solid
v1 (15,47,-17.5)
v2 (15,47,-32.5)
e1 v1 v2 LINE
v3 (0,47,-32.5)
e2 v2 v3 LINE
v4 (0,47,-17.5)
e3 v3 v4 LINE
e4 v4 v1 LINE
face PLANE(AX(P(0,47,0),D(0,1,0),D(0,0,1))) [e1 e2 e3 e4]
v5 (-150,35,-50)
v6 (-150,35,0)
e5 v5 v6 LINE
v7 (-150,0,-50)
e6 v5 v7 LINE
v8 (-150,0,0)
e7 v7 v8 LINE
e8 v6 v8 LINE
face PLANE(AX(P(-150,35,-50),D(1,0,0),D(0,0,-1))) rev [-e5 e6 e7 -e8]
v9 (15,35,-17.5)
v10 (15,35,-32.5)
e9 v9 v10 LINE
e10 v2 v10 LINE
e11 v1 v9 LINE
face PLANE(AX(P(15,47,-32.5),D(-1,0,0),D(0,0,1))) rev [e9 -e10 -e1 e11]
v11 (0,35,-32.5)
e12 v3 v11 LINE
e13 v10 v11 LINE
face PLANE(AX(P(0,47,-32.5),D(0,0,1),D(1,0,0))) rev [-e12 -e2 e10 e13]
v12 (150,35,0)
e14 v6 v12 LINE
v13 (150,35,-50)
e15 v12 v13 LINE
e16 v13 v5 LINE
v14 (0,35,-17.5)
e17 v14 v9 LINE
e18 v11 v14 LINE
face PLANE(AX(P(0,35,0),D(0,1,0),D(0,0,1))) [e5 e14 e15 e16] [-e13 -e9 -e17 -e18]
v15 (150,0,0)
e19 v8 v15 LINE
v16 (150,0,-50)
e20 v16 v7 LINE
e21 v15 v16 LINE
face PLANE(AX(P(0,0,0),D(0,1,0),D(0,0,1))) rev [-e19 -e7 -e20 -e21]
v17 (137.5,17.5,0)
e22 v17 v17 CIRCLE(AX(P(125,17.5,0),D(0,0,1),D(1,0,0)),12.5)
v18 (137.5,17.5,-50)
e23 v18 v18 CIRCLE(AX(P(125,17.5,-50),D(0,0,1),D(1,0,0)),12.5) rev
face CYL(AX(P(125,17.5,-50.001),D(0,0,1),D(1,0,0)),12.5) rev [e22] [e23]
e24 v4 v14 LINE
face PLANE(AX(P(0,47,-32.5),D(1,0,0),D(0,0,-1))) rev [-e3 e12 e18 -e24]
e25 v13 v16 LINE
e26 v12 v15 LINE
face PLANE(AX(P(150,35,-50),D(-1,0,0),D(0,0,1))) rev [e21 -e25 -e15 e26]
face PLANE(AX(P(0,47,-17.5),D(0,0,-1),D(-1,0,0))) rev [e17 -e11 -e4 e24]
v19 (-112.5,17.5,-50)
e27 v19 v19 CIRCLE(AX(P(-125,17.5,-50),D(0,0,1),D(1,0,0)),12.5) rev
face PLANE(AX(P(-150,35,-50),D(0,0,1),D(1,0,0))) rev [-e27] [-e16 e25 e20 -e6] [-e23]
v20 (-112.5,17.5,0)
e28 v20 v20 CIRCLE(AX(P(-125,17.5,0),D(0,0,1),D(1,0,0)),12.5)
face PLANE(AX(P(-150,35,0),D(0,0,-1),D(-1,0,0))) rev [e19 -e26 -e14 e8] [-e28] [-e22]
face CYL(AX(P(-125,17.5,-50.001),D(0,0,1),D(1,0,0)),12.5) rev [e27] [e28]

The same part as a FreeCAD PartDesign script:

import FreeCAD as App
import Part
import Sketcher
Q = App.Units.Quantity


def add_polygon(sketch, points):
    """Adds a closed chain of lines whose ends are joined by coincident constraints."""
    first, n = sketch.GeometryCount, len(points)
    for a, b in zip(points, points[1:] + points[:1]):
        sketch.addGeometry(Part.LineSegment(App.Vector(*a, 0), App.Vector(*b, 0)), False)
    for i in range(n):
        sketch.addConstraint(Sketcher.Constraint("Coincident", first + i, 2, first + (i + 1) % n, 1))

doc = App.newDocument("Part")
body = doc.addObject("PartDesign::Body", "Body")

sketch1 = body.newObject("Sketcher::SketchObject", "Sketch")
sketch1.AttachmentSupport = (doc.getObject("XZ_Plane"), [""])
sketch1.MapMode = "FlatFace"
add_polygon(sketch1, [(-150, -50), (-150, 0), (150, 0), (150, -50)])
sketch1.addConstraint([
    Sketcher.Constraint("Vertical", 0),
    Sketcher.Constraint("Horizontal", 1),
    Sketcher.Constraint("Vertical", 2),
    Sketcher.Constraint("Horizontal", 3),
    Sketcher.Constraint("Symmetric", 0, 2, 1, 2, -1, 1),
    Sketcher.Constraint("DistanceX", 1, 1, 1, 2, Q("300 mm")),
    Sketcher.Constraint("DistanceY", 0, 1, 0, 2, Q("50 mm")),
])
pad1 = body.newObject("PartDesign::Pad", "Pad")
pad1.Profile = sketch1
pad1.Length = 35
pad1.Reversed = True

sketch2 = body.newObject("Sketcher::SketchObject", "Sketch001")
sketch2.AttachmentSupport = (doc.getObject("XZ_Plane"), [""])
sketch2.MapMode = "FlatFace"
sketch2.AttachmentOffset = App.Placement(App.Vector(0, 0, -35), App.Rotation())
add_polygon(sketch2, [(0, -32.5), (0, -17.5), (15, -17.5), (15, -32.5)])
sketch2.addConstraint([
    Sketcher.Constraint("Vertical", 0),
    Sketcher.Constraint("Horizontal", 1),
    Sketcher.Constraint("Vertical", 2),
    Sketcher.Constraint("Horizontal", 3),
    Sketcher.Constraint("PointOnObject", 0, 2, -2),
    Sketcher.Constraint("Equal", 3, 0),
    Sketcher.Constraint("DistanceX", 1, 1, 1, 2, Q("15 mm")),
    Sketcher.Constraint("DistanceY", 0, 2, -1, 1, Q("17.5 mm")),
])
pad2 = body.newObject("PartDesign::Pad", "Pad001")
pad2.Profile = sketch2
pad2.Length = 12
pad2.Reversed = True

sketch3 = body.newObject("Sketcher::SketchObject", "Sketch002")
sketch3.AttachmentSupport = (doc.getObject("XY_Plane"), [""])
sketch3.MapMode = "FlatFace"
sketch3.addGeometry(Part.Circle(App.Vector(-125, 17.5, 0), App.Vector(0, 0, 1), 12.5), False)
sketch3.addConstraint([
    Sketcher.Constraint("Diameter", 0, Q("25 mm")),
    Sketcher.Constraint("DistanceX", 0, 3, -1, 1, Q("125 mm")),
    Sketcher.Constraint("DistanceY", -1, 1, 0, 3, Q("17.5 mm")),
])
pocket1 = body.newObject("PartDesign::Pocket", "Pocket")
pocket1.Profile = sketch3
pocket1.Type = "UpToFirst"

sketch4 = body.newObject("Sketcher::SketchObject", "Sketch003")
sketch4.AttachmentSupport = (doc.getObject("XY_Plane"), [""])
sketch4.MapMode = "FlatFace"
sketch4.addGeometry(Part.Circle(App.Vector(125, 17.5, 0), App.Vector(0, 0, 1), 12.5), False)
sketch4.addConstraint([
    Sketcher.Constraint("Diameter", 0, Q("25 mm")),
    Sketcher.Constraint("DistanceX", -1, 1, 0, 3, Q("125 mm")),
    Sketcher.Constraint("DistanceY", -1, 1, 0, 3, Q("17.5 mm")),
])
pocket2 = body.newObject("PartDesign::Pocket", "Pocket001")
pocket2.Profile = sketch4
pocket2.Type = "UpToFirst"

doc.recompute()
